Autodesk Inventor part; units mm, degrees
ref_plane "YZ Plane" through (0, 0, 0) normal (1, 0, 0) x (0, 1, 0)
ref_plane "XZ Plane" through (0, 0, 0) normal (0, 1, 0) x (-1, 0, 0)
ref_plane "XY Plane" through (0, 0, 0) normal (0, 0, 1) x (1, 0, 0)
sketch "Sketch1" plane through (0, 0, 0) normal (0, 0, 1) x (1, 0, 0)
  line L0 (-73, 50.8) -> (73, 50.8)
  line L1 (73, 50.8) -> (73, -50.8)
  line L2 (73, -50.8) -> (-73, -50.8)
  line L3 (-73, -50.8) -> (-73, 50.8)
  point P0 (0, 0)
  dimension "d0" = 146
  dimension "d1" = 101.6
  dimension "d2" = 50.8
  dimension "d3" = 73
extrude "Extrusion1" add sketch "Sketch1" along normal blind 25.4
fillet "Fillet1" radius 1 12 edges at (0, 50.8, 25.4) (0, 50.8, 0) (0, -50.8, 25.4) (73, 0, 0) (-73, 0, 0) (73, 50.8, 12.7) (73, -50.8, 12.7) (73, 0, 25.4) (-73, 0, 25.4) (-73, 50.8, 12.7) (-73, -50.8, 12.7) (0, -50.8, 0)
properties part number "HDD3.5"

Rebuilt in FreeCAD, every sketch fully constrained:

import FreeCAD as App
import Part
import Sketcher

V = App.Vector

doc = App.newDocument("Part")
body = doc.addObject("PartDesign::Body", "Body")

# Sketch on XY plane
sketch1 = body.newObject("Sketcher::SketchObject", "Sketch")
sketch1.AttachmentSupport = (doc.getObject("XY_Plane"), [""])
sketch1.MapMode = "FlatFace"
sketch1.addGeometry([
    Part.LineSegment(V(73, 51, 0), V(-73, 51, 0)),
    Part.LineSegment(V(-73, 51, 0), V(-73, -51, 0)),
    Part.LineSegment(V(-73, -51, 0), V(73, -51, 0)),
    Part.LineSegment(V(73, -51, 0), V(73, 51, 0)),
], False)
sketch1.addConstraint([
    Sketcher.Constraint("Coincident", 0, 2, 1, 1),
    Sketcher.Constraint("Coincident", 1, 2, 2, 1),
    Sketcher.Constraint("Coincident", 2, 2, 3, 1),
    Sketcher.Constraint("Coincident", 3, 2, 0, 1),
    Sketcher.Constraint("Horizontal", 0),
    Sketcher.Constraint("Vertical", 1),
    Sketcher.Constraint("Horizontal", 2),
    Sketcher.Constraint("Vertical", 3),
    Sketcher.Constraint("Symmetric", 0, 2, 2, 2, -1, 1),
    Sketcher.Constraint("DistanceX", 0, 2, 0, 1, 146.0),
    Sketcher.Constraint("DistanceY", 1, 2, 1, 1, 101.6),
])
pad1 = body.newObject("PartDesign::Pad", "Pad")
pad1.Profile = sketch1
pad1.Length = 25.4
doc.recompute()

fillet = body.newObject("PartDesign::Fillet", "Fillet")
fillet.Base = (pad1, ["Edge1"])
fillet.UseAllEdges = True
fillet.Radius = 1

doc.recompute()
